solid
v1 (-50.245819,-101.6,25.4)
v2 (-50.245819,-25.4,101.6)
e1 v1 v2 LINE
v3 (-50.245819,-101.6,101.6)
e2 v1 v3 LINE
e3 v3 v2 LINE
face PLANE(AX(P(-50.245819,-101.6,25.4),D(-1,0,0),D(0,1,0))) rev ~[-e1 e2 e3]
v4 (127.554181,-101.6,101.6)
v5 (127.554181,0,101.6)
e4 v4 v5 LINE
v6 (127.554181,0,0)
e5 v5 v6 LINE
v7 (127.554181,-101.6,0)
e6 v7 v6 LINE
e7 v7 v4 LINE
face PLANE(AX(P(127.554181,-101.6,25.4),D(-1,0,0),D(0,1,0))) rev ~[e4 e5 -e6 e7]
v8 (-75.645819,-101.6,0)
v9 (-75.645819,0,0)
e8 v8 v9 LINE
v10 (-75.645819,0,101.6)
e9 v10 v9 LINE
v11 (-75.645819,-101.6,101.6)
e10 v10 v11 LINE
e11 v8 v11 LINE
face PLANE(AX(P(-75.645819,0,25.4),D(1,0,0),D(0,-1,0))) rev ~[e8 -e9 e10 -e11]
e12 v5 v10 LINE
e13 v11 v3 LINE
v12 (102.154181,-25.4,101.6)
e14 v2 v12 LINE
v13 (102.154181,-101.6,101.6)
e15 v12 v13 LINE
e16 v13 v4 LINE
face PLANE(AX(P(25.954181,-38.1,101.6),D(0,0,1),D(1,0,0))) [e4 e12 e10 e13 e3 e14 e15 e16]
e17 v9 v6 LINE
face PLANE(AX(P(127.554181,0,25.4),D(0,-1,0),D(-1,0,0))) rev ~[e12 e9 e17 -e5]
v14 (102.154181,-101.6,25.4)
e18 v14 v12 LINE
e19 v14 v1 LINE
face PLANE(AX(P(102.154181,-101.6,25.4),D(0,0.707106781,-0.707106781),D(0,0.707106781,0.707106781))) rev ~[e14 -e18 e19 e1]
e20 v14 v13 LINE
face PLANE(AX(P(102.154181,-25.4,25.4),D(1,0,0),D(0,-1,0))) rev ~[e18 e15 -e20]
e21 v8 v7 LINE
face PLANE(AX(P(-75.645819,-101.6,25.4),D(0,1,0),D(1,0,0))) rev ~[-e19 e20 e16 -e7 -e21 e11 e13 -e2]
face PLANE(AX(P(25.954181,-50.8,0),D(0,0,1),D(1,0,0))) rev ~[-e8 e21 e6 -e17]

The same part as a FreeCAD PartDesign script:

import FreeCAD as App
import Part
import Sketcher
from FreeCAD import Vector
Q = App.Units.Quantity

doc = App.newDocument("Part")
body = doc.addObject("PartDesign::Body", "Body")

# Sketch on XY plane
sketch1 = doc.addObject("Sketcher::SketchObject", "Sketch")
body.addObject(sketch1)
sketch1.AttachmentSupport = (doc.XY_Plane, [""])
sketch1.MapMode = "FlatFace"
sketch1.addGeometry([
    Part.LineSegment(Vector(-76, 0, 0), Vector(-76, -102, 0)),
    Part.LineSegment(Vector(-76, -102, 0), Vector(128, -102, 0)),
    Part.LineSegment(Vector(128, -102, 0), Vector(128, 0, 0)),
    Part.LineSegment(Vector(128, 0, 0), Vector(-76, 0, 0)),
], False)
sketch1.addConstraint([
    Sketcher.Constraint("Coincident", 0, 2, 1, 1),
    Sketcher.Constraint("Coincident", 1, 2, 2, 1),
    Sketcher.Constraint("Coincident", 2, 2, 3, 1),
    Sketcher.Constraint("Coincident", 3, 2, 0, 1),
    Sketcher.Constraint("Vertical", 0),
    Sketcher.Constraint("Horizontal", 1),
    Sketcher.Constraint("Vertical", 2),
    Sketcher.Constraint("Horizontal", 3),
    Sketcher.Constraint("PointOnObject", 2, 2, -1),
    Sketcher.Constraint("DistanceX", 1, 1, 1, 2, Q("8 in")),
    Sketcher.Constraint("DistanceY", 0, 2, 0, 1, Q("4 in")),
    Sketcher.Constraint("DistanceX", 0, 2, -1, 1, Q("75.645819 mm")),
])
pad1 = doc.addObject("PartDesign::Pad", "Pad")
body.addObject(pad1)
pad1.Profile = sketch1
pad1.Length = Q("1 in")

# Sketch on XY plane
sketch2 = doc.addObject("Sketcher::SketchObject", "Sketch001")
body.addObject(sketch2)
sketch2.AttachmentSupport = (doc.XY_Plane, [""])
sketch2.MapMode = "FlatFace"
sketch2.AttachmentOffset = App.Placement(Vector(0, 0, 1 * 25.4), App.Rotation())
sketch2.addGeometry([
    Part.LineSegment(Vector(-50, -25, 0), Vector(-50, -102, 0)),
    Part.LineSegment(Vector(-50, -102, 0), Vector(102, -102, 0)),
    Part.LineSegment(Vector(102, -102, 0), Vector(102, -25, 0)),
    Part.LineSegment(Vector(102, -25, 0), Vector(-50, -25, 0)),
], False)
sketch2.addConstraint([
    Sketcher.Constraint("Coincident", 0, 2, 1, 1),
    Sketcher.Constraint("Coincident", 1, 2, 2, 1),
    Sketcher.Constraint("Coincident", 2, 2, 3, 1),
    Sketcher.Constraint("Coincident", 3, 2, 0, 1),
    Sketcher.Constraint("Vertical", 0),
    Sketcher.Constraint("Horizontal", 1),
    Sketcher.Constraint("Vertical", 2),
    Sketcher.Constraint("Horizontal", 3),
    Sketcher.Constraint("DistanceX", 1, 1, 1, 2, Q("6 in")),
    Sketcher.Constraint("DistanceY", 0, 2, 0, 1, Q("3 in")),
    Sketcher.Constraint("DistanceY", 0, 2, -1, 1, Q("4 in")),
    Sketcher.Constraint("DistanceX", 0, 2, -1, 1, Q("50.245819 mm")),
])
pad2 = doc.addObject("PartDesign::Pad", "Pad001")
body.addObject(pad2)
pad2.Profile = sketch2
pad2.Length = Q("3 in")

# Sketch on YZ plane
sketch3 = doc.addObject("Sketcher::SketchObject", "Sketch002")
body.addObject(sketch3)
sketch3.AttachmentSupport = (doc.YZ_Plane, [""])
sketch3.MapMode = "FlatFace"
sketch3.AttachmentOffset = App.Placement(Vector(0, 0, 102.154181), App.Rotation())
sketch3.addGeometry([
    Part.LineSegment(Vector(-102, 102, 0), Vector(-102, 25, 0)),
    Part.LineSegment(Vector(-102, 25, 0), Vector(-25, 102, 0)),
    Part.LineSegment(Vector(-25, 102, 0), Vector(-102, 102, 0)),
], False)
sketch3.addConstraint([
    Sketcher.Constraint("Coincident", 0, 2, 1, 1),
    Sketcher.Constraint("Coincident", 1, 2, 2, 1),
    Sketcher.Constraint("Coincident", 2, 2, 0, 1),
    Sketcher.Constraint("Vertical", 0),
    Sketcher.Constraint("Horizontal", 2),
    Sketcher.Constraint("Equal", 2, 0),
    Sketcher.Constraint("DistanceX", 2, 2, 2, 1, Q("3 in")),
    Sketcher.Constraint("DistanceX", 0, 2, -1, 1, Q("4 in")),
    Sketcher.Constraint("DistanceY", -1, 1, 0, 2, Q("1 in")),
])
pocket1 = doc.addObject("PartDesign::Pocket", "Pocket")
body.addObject(pocket1)
pocket1.Profile = sketch3
pocket1.Type = "ThroughAll"

# Sketch on XY plane
sketch4 = doc.addObject("Sketcher::SketchObject", "Sketch003")
body.addObject(sketch4)
sketch4.AttachmentSupport = (doc.XY_Plane, [""])
sketch4.MapMode = "FlatFace"
sketch4.AttachmentOffset = App.Placement(Vector(0, 0, 1 * 25.4), App.Rotation())
sketch4.addGeometry([
    Part.LineSegment(Vector(-76, 0, 0), Vector(-76, -102, 0)),  # 0
    Part.LineSegment(Vector(-76, -102, 0), Vector(-50, -102, 0)),  # 1
    Part.LineSegment(Vector(-50, -102, 0), Vector(-50, -25, 0)),  # 2
    Part.LineSegment(Vector(-50, -25, 0), Vector(102, -25, 0)),  # 3
    Part.LineSegment(Vector(102, -25, 0), Vector(102, -102, 0)),  # 4
    Part.LineSegment(Vector(102, -102, 0), Vector(128, -102, 0)),  # 5
    Part.LineSegment(Vector(128, -102, 0), Vector(128, 0, 0)),  # 6
    Part.LineSegment(Vector(128, 0, 0), Vector(-76, 0, 0)),  # 7
], False)
sketch4.addConstraint([
    Sketcher.Constraint("Coincident", 0, 2, 1, 1),
    Sketcher.Constraint("Coincident", 1, 2, 2, 1),
    Sketcher.Constraint("Coincident", 2, 2, 3, 1),
    Sketcher.Constraint("Coincident", 3, 2, 4, 1),
    Sketcher.Constraint("Coincident", 4, 2, 5, 1),
    Sketcher.Constraint("Coincident", 5, 2, 6, 1),
    Sketcher.Constraint("Coincident", 6, 2, 7, 1),
    Sketcher.Constraint("Coincident", 7, 2, 0, 1),
    Sketcher.Constraint("Vertical", 0),
    Sketcher.Constraint("Horizontal", 1),
    Sketcher.Constraint("Vertical", 2),
    Sketcher.Constraint("Horizontal", 3),
    Sketcher.Constraint("Vertical", 4),
    Sketcher.Constraint("Horizontal", 5),
    Sketcher.Constraint("Vertical", 6),
    Sketcher.Constraint("Horizontal", 7),
    Sketcher.Constraint("PointOnObject", 6, 2, -1),
    Sketcher.Constraint("Horizontal", 1, 2, 4, 2),
    Sketcher.Constraint("Equal", 1, 5),
    Sketcher.Constraint("DistanceX", 1, 1, 1, 2, Q("1 in")),
    Sketcher.Constraint("DistanceX", 3, 1, 3, 2, Q("6 in")),
    Sketcher.Constraint("DistanceY", 0, 2, 0, 1, Q("4 in")),
    Sketcher.Constraint("DistanceY", 2, 1, 2, 2, Q("3 in")),
    Sketcher.Constraint("DistanceX", 0, 2, -1, 1, Q("75.645819 mm")),
])
pad3 = doc.addObject("PartDesign::Pad", "Pad002")
body.addObject(pad3)
pad3.Profile = sketch4
pad3.Length = Q("3 in")

doc.recompute()
